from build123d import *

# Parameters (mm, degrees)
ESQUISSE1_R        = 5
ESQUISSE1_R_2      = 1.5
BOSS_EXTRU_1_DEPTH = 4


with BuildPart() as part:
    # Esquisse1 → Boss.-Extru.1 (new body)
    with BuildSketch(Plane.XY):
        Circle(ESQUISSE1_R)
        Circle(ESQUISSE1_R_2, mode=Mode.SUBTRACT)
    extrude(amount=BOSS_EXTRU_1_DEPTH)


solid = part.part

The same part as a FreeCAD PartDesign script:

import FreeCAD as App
import Part
import Sketcher
from FreeCAD import Vector
Q = App.Units.Quantity

doc = App.newDocument("Part")
params = doc.addObject("Spreadsheet::Sheet", "Params")
for row, (alias, value) in enumerate([
    ("sketch1_diameter", "10 mm"),
    ("sketch1_diameter2", "3 mm"),
    ("pad1_length", "4 mm"),
], start=1):
    params.set(f"A{row}", alias)
    params.set(f"B{row}", "=" + value)
    params.setAlias(f"B{row}", alias)

body = doc.addObject("PartDesign::Body", "Body")

sketch1 = body.newObject("Sketcher::SketchObject", "Sketch")
sketch1.AttachmentSupport = (doc.getObject("XY_Plane"), [""])
sketch1.MapMode = "FlatFace"
sketch1.addGeometry(Part.Circle(Vector(0, 0, 0), Vector(0, 0, 1), 5), False)
sketch1.addGeometry(Part.Circle(Vector(0, 0, 0), Vector(0, 0, 1), 1.5), False)
sketch1.addConstraint(Sketcher.Constraint("Coincident", 0, 3, -1, 1))
sketch1.addConstraint(Sketcher.Constraint("Coincident", 1, 3, -1, 1))
sketch1.addConstraint(Sketcher.Constraint("Diameter", 0, Q("10 mm")))
sketch1.addConstraint(Sketcher.Constraint("Diameter", 1, Q("3 mm")))
sketch1.setExpression("Constraints[2]", "Params.sketch1_diameter")
sketch1.setExpression("Constraints[3]", "Params.sketch1_diameter2")
pad1 = body.newObject("PartDesign::Pad", "Pad")
pad1.Profile = sketch1
pad1.setExpression("Length", "Params.pad1_length")

doc.recompute()
